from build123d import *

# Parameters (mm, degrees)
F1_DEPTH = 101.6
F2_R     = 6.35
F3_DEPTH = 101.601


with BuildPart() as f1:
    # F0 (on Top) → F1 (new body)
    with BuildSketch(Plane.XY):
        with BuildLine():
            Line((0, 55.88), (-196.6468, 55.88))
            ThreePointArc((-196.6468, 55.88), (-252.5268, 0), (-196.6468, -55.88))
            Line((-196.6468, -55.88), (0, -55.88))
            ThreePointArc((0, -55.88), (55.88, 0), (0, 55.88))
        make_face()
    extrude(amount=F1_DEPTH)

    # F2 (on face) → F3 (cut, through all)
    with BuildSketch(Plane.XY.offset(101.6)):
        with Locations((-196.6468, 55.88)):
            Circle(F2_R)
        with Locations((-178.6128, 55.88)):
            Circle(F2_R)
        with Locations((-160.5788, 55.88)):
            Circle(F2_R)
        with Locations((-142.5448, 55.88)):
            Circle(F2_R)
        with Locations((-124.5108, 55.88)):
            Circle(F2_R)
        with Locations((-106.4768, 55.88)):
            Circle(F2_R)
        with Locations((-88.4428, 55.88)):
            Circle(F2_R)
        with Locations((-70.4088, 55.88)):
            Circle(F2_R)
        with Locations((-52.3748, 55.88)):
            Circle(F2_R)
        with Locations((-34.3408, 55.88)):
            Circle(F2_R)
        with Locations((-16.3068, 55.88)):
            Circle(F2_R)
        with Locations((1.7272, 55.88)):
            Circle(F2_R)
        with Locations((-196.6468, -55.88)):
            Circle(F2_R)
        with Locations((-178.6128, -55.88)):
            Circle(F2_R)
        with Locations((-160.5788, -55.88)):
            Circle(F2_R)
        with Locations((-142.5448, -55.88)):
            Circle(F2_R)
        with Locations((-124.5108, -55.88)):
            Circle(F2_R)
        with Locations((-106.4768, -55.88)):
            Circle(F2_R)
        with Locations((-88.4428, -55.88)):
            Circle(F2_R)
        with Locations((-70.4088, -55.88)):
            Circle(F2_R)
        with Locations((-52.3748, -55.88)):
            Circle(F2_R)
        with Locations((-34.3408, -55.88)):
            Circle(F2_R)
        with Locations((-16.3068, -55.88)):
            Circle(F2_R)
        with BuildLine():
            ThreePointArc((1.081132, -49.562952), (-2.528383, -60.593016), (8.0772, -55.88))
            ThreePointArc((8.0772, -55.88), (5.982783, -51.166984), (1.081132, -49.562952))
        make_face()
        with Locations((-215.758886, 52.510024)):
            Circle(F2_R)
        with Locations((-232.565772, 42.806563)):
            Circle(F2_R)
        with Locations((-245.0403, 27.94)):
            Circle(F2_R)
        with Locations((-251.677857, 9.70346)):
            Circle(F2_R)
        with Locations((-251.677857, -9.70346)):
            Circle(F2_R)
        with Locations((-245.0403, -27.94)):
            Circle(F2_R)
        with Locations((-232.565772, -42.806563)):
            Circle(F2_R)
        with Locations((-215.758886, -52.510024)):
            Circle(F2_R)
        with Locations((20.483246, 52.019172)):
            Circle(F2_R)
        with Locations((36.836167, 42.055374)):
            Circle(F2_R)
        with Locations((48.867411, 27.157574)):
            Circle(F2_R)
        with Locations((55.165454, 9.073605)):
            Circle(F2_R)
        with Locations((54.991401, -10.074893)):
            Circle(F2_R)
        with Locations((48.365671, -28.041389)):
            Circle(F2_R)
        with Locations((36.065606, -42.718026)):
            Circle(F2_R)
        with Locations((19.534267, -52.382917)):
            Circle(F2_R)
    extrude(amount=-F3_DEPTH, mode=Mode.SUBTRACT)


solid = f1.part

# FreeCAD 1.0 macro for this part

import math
import FreeCAD as App
import Part
import Sketcher
Q = App.Units.Quantity

doc = App.newDocument("Part")
body = doc.addObject("PartDesign::Body", "Body")

# Sketch on XY plane
sketch1 = doc.addObject("Sketcher::SketchObject", "Sketch")
body.addObject(sketch1)
sketch1.AttachmentSupport = (doc.XY_Plane, [""])
sketch1.MapMode = "FlatFace"
sketch1.addGeometry(Part.LineSegment(App.Vector(0, 55.88, 0), App.Vector(-196.6468, 55.88, 0)), False)
sketch1.addGeometry(Part.ArcOfCircle(Part.Circle(App.Vector(-196.6468, 0, 0), App.Vector(0, 0, 1), 55.88), math.radians(90), math.radians(270)), False)
sketch1.addGeometry(Part.LineSegment(App.Vector(-196.6468, -55.88, 0), App.Vector(0, -55.88, 0)), False)
sketch1.addGeometry(Part.ArcOfCircle(Part.Circle(App.Vector(0, 0, 0), App.Vector(0, 0, 1), 55.88), math.radians(-90), math.radians(90)), False)
sketch1.addConstraint(Sketcher.Constraint("Tangent", 0, 2, 1, 1))
sketch1.addConstraint(Sketcher.Constraint("Tangent", 1, 2, 2, 1))
sketch1.addConstraint(Sketcher.Constraint("Tangent", 2, 2, 3, 1))
sketch1.addConstraint(Sketcher.Constraint("Tangent", 3, 2, 0, 1))
sketch1.addConstraint(Sketcher.Constraint("Horizontal", 0))
sketch1.addConstraint(Sketcher.Constraint("Horizontal", 2))
sketch1.addConstraint(Sketcher.Constraint("Coincident", 3, 3, -1, 1))
sketch1.addConstraint(Sketcher.Constraint("Radius", 1, Q("2.2 in")))
sketch1.addConstraint(Sketcher.Constraint("DistanceX", 0, 2, 0, 1, Q("7.742 in")))
pad1 = doc.addObject("PartDesign::Pad", "Pad")
body.addObject(pad1)
pad1.Profile = sketch1
pad1.Length = Q("4 in")

# Sketch on XY plane
sketch2 = doc.addObject("Sketcher::SketchObject", "Sketch001")
body.addObject(sketch2)
sketch2.AttachmentSupport = (doc.XY_Plane, [""])
sketch2.MapMode = "FlatFace"
sketch2.AttachmentOffset = App.Placement(App.Vector(0, 0, 4 * 25.4), App.Rotation())
sketch2.addGeometry(Part.Circle(App.Vector(-196.6468, 55.88, 0), App.Vector(0, 0, 1), 6.35), False)
sketch2.addGeometry(Part.Circle(App.Vector(-178.6128, 55.88, 0), App.Vector(0, 0, 1), 6.35), False)
sketch2.addGeometry(Part.Circle(App.Vector(-160.5788, 55.88, 0), App.Vector(0, 0, 1), 6.35), False)
sketch2.addGeometry(Part.Circle(App.Vector(-142.5448, 55.88, 0), App.Vector(0, 0, 1), 6.35), False)
sketch2.addGeometry(Part.Circle(App.Vector(-124.5108, 55.88, 0), App.Vector(0, 0, 1), 6.35), False)
sketch2.addGeometry(Part.Circle(App.Vector(-106.4768, 55.88, 0), App.Vector(0, 0, 1), 6.35), False)
sketch2.addGeometry(Part.Circle(App.Vector(-88.4428, 55.88, 0), App.Vector(0, 0, 1), 6.35), False)
sketch2.addGeometry(Part.Circle(App.Vector(-70.4088, 55.88, 0), App.Vector(0, 0, 1), 6.35), False)
sketch2.addGeometry(Part.Circle(App.Vector(-52.3748, 55.88, 0), App.Vector(0, 0, 1), 6.35), False)
sketch2.addGeometry(Part.Circle(App.Vector(-34.3408, 55.88, 0), App.Vector(0, 0, 1), 6.35), False)
sketch2.addGeometry(Part.Circle(App.Vector(-16.3068, 55.88, 0), App.Vector(0, 0, 1), 6.35), False)
sketch2.addGeometry(Part.Circle(App.Vector(1.7272, 55.88, 0), App.Vector(0, 0, 1), 6.35), False)
sketch2.addGeometry(Part.Circle(App.Vector(-196.6468, -55.88, 0), App.Vector(0, 0, 1), 6.35), False)
sketch2.addGeometry(Part.Circle(App.Vector(-178.6128, -55.88, 0), App.Vector(0, 0, 1), 6.35), False)
sketch2.addGeometry(Part.Circle(App.Vector(-160.5788, -55.88, 0), App.Vector(0, 0, 1), 6.35), False)
sketch2.addGeometry(Part.Circle(App.Vector(-142.5448, -55.88, 0), App.Vector(0, 0, 1), 6.35), False)
sketch2.addGeometry(Part.Circle(App.Vector(-124.5108, -55.88, 0), App.Vector(0, 0, 1), 6.35), False)
sketch2.addGeometry(Part.Circle(App.Vector(-106.4768, -55.88, 0), App.Vector(0, 0, 1), 6.35), False)
sketch2.addGeometry(Part.Circle(App.Vector(-88.4428, -55.88, 0), App.Vector(0, 0, 1), 6.35), False)
sketch2.addGeometry(Part.Circle(App.Vector(-70.4088, -55.88, 0), App.Vector(0, 0, 1), 6.35), False)
sketch2.addGeometry(Part.Circle(App.Vector(-52.3748, -55.88, 0), App.Vector(0, 0, 1), 6.35), False)
sketch2.addGeometry(Part.Circle(App.Vector(-34.3408, -55.88, 0), App.Vector(0, 0, 1), 6.35), False)
sketch2.addGeometry(Part.Circle(App.Vector(-16.3068, -55.88, 0), App.Vector(0, 0, 1), 6.35), False)
sketch2.addGeometry(Part.ArcOfCircle(Part.Circle(App.Vector(1.7272, -55.88, 0), App.Vector(0, 0, 1), 6.35), math.radians(95.839547), math.radians(360.000002)), False)
sketch2.addGeometry(Part.ArcOfCircle(Part.Circle(App.Vector(1.727201, -55.879999, 0), App.Vector(0, 0, 1), 6.349999), math.radians(-0.000011), math.radians(95.83956)), False)
sketch2.addGeometry(Part.Circle(App.Vector(-215.758886, 52.510024, 0), App.Vector(0, 0, 1), 6.35), False)
sketch2.addGeometry(Part.Circle(App.Vector(-232.565772, 42.806563, 0), App.Vector(0, 0, 1), 6.35), False)
sketch2.addGeometry(Part.Circle(App.Vector(-245.0403, 27.94, 0), App.Vector(0, 0, 1), 6.35), False)
sketch2.addGeometry(Part.Circle(App.Vector(-251.677857, 9.70346, 0), App.Vector(0, 0, 1), 6.35), False)
sketch2.addGeometry(Part.Circle(App.Vector(-251.677857, -9.70346, 0), App.Vector(0, 0, 1), 6.35), False)
sketch2.addGeometry(Part.Circle(App.Vector(-245.0403, -27.94, 0), App.Vector(0, 0, 1), 6.35), False)
sketch2.addGeometry(Part.Circle(App.Vector(-232.565772, -42.806563, 0), App.Vector(0, 0, 1), 6.35), False)
sketch2.addGeometry(Part.Circle(App.Vector(-215.758886, -52.510024, 0), App.Vector(0, 0, 1), 6.35), False)
sketch2.addGeometry(Part.Circle(App.Vector(20.483246, 52.019172, 0), App.Vector(0, 0, 1), 6.35), False)
sketch2.addGeometry(Part.Circle(App.Vector(36.836167, 42.055374, 0), App.Vector(0, 0, 1), 6.35), False)
sketch2.addGeometry(Part.Circle(App.Vector(48.867411, 27.157574, 0), App.Vector(0, 0, 1), 6.35), False)
sketch2.addGeometry(Part.Circle(App.Vector(55.165454, 9.073605, 0), App.Vector(0, 0, 1), 6.35), False)
sketch2.addGeometry(Part.Circle(App.Vector(54.991401, -10.074893, 0), App.Vector(0, 0, 1), 6.35), False)
sketch2.addGeometry(Part.Circle(App.Vector(48.365671, -28.041389, 0), App.Vector(0, 0, 1), 6.35), False)
sketch2.addGeometry(Part.Circle(App.Vector(36.065606, -42.718026, 0), App.Vector(0, 0, 1), 6.35), False)
sketch2.addGeometry(Part.Circle(App.Vector(19.534267, -52.382917, 0), App.Vector(0, 0, 1), 6.35), False)
sketch2.addConstraint(Sketcher.Constraint("Tangent", 23, 1, 24, 2))
sketch2.addConstraint(Sketcher.Constraint("Coincident", 24, 1, 23, 2))
sketch2.addConstraint(Sketcher.Constraint("Equal", 0, 1))
sketch2.addConstraint(Sketcher.Constraint("Equal", 1, 2))
sketch2.addConstraint(Sketcher.Constraint("Equal", 2, 3))
sketch2.addConstraint(Sketcher.Constraint("Equal", 3, 4))
sketch2.addConstraint(Sketcher.Constraint("Equal", 4, 5))
sketch2.addConstraint(Sketcher.Constraint("Equal", 5, 6))
sketch2.addConstraint(Sketcher.Constraint("Equal", 6, 7))
sketch2.addConstraint(Sketcher.Constraint("Equal", 7, 8))
sketch2.addConstraint(Sketcher.Constraint("Equal", 8, 9))
sketch2.addConstraint(Sketcher.Constraint("Equal", 9, 10))
sketch2.addConstraint(Sketcher.Constraint("Equal", 10, 11))
sketch2.addConstraint(Sketcher.Constraint("Equal", 11, 12))
sketch2.addConstraint(Sketcher.Constraint("Equal", 12, 13))
sketch2.addConstraint(Sketcher.Constraint("Equal", 13, 14))
sketch2.addConstraint(Sketcher.Constraint("Equal", 14, 15))
sketch2.addConstraint(Sketcher.Constraint("Equal", 15, 16))
sketch2.addConstraint(Sketcher.Constraint("Equal", 16, 17))
sketch2.addConstraint(Sketcher.Constraint("Equal", 17, 18))
sketch2.addConstraint(Sketcher.Constraint("Equal", 18, 19))
sketch2.addConstraint(Sketcher.Constraint("Equal", 19, 20))
sketch2.addConstraint(Sketcher.Constraint("Equal", 20, 21))
sketch2.addConstraint(Sketcher.Constraint("Equal", 21, 22))
sketch2.addConstraint(Sketcher.Constraint("Equal", 22, 23))
sketch2.addConstraint(Sketcher.Constraint("Equal", 24, 25))
sketch2.addConstraint(Sketcher.Constraint("Equal", 25, 26))
sketch2.addConstraint(Sketcher.Constraint("Equal", 26, 27))
sketch2.addConstraint(Sketcher.Constraint("Equal", 27, 28))
sketch2.addConstraint(Sketcher.Constraint("Equal", 28, 29))
sketch2.addConstraint(Sketcher.Constraint("Equal", 29, 30))
sketch2.addConstraint(Sketcher.Constraint("Equal", 30, 31))
sketch2.addConstraint(Sketcher.Constraint("Equal", 31, 32))
sketch2.addConstraint(Sketcher.Constraint("Equal", 32, 33))
sketch2.addConstraint(Sketcher.Constraint("Equal", 33, 34))
sketch2.addConstraint(Sketcher.Constraint("Equal", 34, 35))
sketch2.addConstraint(Sketcher.Constraint("Equal", 35, 36))
sketch2.addConstraint(Sketcher.Constraint("Equal", 36, 37))
sketch2.addConstraint(Sketcher.Constraint("Equal", 37, 38))
sketch2.addConstraint(Sketcher.Constraint("Equal", 38, 39))
sketch2.addConstraint(Sketcher.Constraint("Equal", 39, 40))
sketch2.addConstraint(Sketcher.Constraint("Symmetric", 0, 3, 12, 3, -1))
sketch2.addConstraint(Sketcher.Constraint("Symmetric", 1, 3, 13, 3, -1))
sketch2.addConstraint(Sketcher.Constraint("Symmetric", 2, 3, 14, 3, -1))
sketch2.addConstraint(Sketcher.Constraint("Symmetric", 3, 3, 15, 3, -1))
sketch2.addConstraint(Sketcher.Constraint("Symmetric", 4, 3, 16, 3, -1))
sketch2.addConstraint(Sketcher.Constraint("Symmetric", 5, 3, 17, 3, -1))
sketch2.addConstraint(Sketcher.Constraint("Symmetric", 6, 3, 18, 3, -1))
sketch2.addConstraint(Sketcher.Constraint("Symmetric", 7, 3, 19, 3, -1))
sketch2.addConstraint(Sketcher.Constraint("Symmetric", 8, 3, 20, 3, -1))
sketch2.addConstraint(Sketcher.Constraint("Symmetric", 9, 3, 21, 3, -1))
sketch2.addConstraint(Sketcher.Constraint("Symmetric", 10, 3, 22, 3, -1))
sketch2.addConstraint(Sketcher.Constraint("Symmetric", 11, 3, 23, 3, -1))
sketch2.addConstraint(Sketcher.Constraint("Symmetric", 28, 3, 29, 3, -1))
sketch2.addConstraint(Sketcher.Constraint("Symmetric", 27, 3, 30, 3, -1))
sketch2.addConstraint(Sketcher.Constraint("Symmetric", 26, 3, 31, 3, -1))
sketch2.addConstraint(Sketcher.Constraint("Symmetric", 25, 3, 32, 3, -1))
sketch2.addConstraint(Sketcher.Constraint("Horizontal", 0, 3, 1, 3))
sketch2.addConstraint(Sketcher.Constraint("Horizontal", 1, 3, 2, 3))
sketch2.addConstraint(Sketcher.Constraint("Horizontal", 2, 3, 3, 3))
sketch2.addConstraint(Sketcher.Constraint("Horizontal", 3, 3, 4, 3))
sketch2.addConstraint(Sketcher.Constraint("Horizontal", 4, 3, 5, 3))
sketch2.addConstraint(Sketcher.Constraint("Horizontal", 5, 3, 6, 3))
sketch2.addConstraint(Sketcher.Constraint("Horizontal", 6, 3, 7, 3))
sketch2.addConstraint(Sketcher.Constraint("Horizontal", 7, 3, 8, 3))
sketch2.addConstraint(Sketcher.Constraint("Horizontal", 8, 3, 9, 3))
sketch2.addConstraint(Sketcher.Constraint("Horizontal", 9, 3, 10, 3))
sketch2.addConstraint(Sketcher.Constraint("Horizontal", 10, 3, 11, 3))
sketch2.addConstraint(Sketcher.Constraint("Horizontal", 23, 3, 24, 1))
sketch2.addConstraint(Sketcher.Constraint("Diameter", 0, Q("0.5 in")))
sketch2.addConstraint(Sketcher.Constraint("DistanceY", -1, 1, 0, 3, Q("2.2 in")))
sketch2.addConstraint(Sketcher.Constraint("DistanceY", -1, 1, 27, 3, Q("1.1 in")))
sketch2.addConstraint(Sketcher.Constraint("DistanceX", 0, 3, 1, 3, Q("0.71 in")))
sketch2.addConstraint(Sketcher.Constraint("DistanceX", 1, 3, 2, 3, Q("0.71 in")))
sketch2.addConstraint(Sketcher.Constraint("DistanceX", 2, 3, 3, 3, Q("0.71 in")))
sketch2.addConstraint(Sketcher.Constraint("DistanceX", 3, 3, 4, 3, Q("0.71 in")))
sketch2.addConstraint(Sketcher.Constraint("DistanceX", 4, 3, 5, 3, Q("0.71 in")))
sketch2.addConstraint(Sketcher.Constraint("DistanceX", 5, 3, 6, 3, Q("0.71 in")))
sketch2.addConstraint(Sketcher.Constraint("DistanceX", 6, 3, 7, 3, Q("0.71 in")))
sketch2.addConstraint(Sketcher.Constraint("DistanceX", 7, 3, 8, 3, Q("0.71 in")))
sketch2.addConstraint(Sketcher.Constraint("DistanceX", 8, 3, 9, 3, Q("0.71 in")))
sketch2.addConstraint(Sketcher.Constraint("DistanceX", 9, 3, 10, 3, Q("0.71 in")))
sketch2.addConstraint(Sketcher.Constraint("DistanceX", 10, 3, 11, 3, Q("0.71 in")))
sketch2.addConstraint(Sketcher.Constraint("DistanceX", 0, 3, -1, 1, Q("7.742 in")))
sketch2.addConstraint(Sketcher.Constraint("DistanceX", 27, 3, -1, 1, 245.0403))
sketch2.addConstraint(Sketcher.Constraint("DistanceX", -1, 1, 37, 3, 54.991401))
sketch2.addConstraint(Sketcher.Constraint("DistanceY", 35, 3, 34, 3, 14.8978))
sketch2.addConstraint(Sketcher.Constraint("DistanceY", 37, 3, 36, 3, 19.148498))
sketch2.addConstraint(Sketcher.Constraint("DistanceY", -1, 1, 28, 3, 9.70346))
sketch2.addConstraint(Sketcher.Constraint("DistanceY", -1, 1, 33, 3, 52.019172))
sketch2.addConstraint(Sketcher.Constraint("DistanceX", -1, 1, 35, 3, 48.867411))
sketch2.addConstraint(Sketcher.Constraint("DistanceX", -1, 1, 38, 3, 48.365671))
sketch2.addConstraint(Sketcher.Constraint("DistanceY", 38, 3, -1, 1, 28.041389))
sketch2.addConstraint(Sketcher.Constraint("DistanceX", -1, 1, 23, 1, 1.081132))
sketch2.addConstraint(Sketcher.Constraint("DistanceY", 26, 3, 25, 3, 9.703461))
sketch2.addConstraint(Sketcher.Constraint("DistanceX", 26, 3, 0, 3, 35.918972))
sketch2.addConstraint(Sketcher.Constraint("DistanceX", 28, 3, 25, 3, 35.918971))
sketch2.addConstraint(Sketcher.Constraint("DistanceX", 33, 3, 34, 3, 16.352921))
sketch2.addConstraint(Sketcher.Constraint("DistanceY", 36, 3, 35, 3, 18.083969))
sketch2.addConstraint(Sketcher.Constraint("DistanceY", 24, 3, 40, 3, 3.497082))
sketch2.addConstraint(Sketcher.Constraint("DistanceX", 40, 3, 39, 3, 16.531339))
sketch2.addConstraint(Sketcher.Constraint("DistanceY", 40, 3, 39, 3, 9.664891))
sketch2.addConstraint(Sketcher.Constraint("DistanceX", 25, 3, -1, 1, 215.758886))
sketch2.addConstraint(Sketcher.Constraint("DistanceY", -1, 1, 25, 3, 52.510024))
sketch2.addConstraint(Sketcher.Constraint("DistanceX", -1, 1, 33, 3, 20.483246))
sketch2.addConstraint(Sketcher.Constraint("DistanceY", -1, 1, 34, 3, 42.055374))
sketch2.addConstraint(Sketcher.Constraint("DistanceX", -1, 1, 36, 3, 55.165454))
sketch2.addConstraint(Sketcher.Constraint("DistanceX", -1, 1, 39, 3, 36.065606))
pocket1 = doc.addObject("PartDesign::Pocket", "Pocket")
body.addObject(pocket1)
pocket1.Profile = sketch2
pocket1.Type = "ThroughAll"

doc.recompute()
